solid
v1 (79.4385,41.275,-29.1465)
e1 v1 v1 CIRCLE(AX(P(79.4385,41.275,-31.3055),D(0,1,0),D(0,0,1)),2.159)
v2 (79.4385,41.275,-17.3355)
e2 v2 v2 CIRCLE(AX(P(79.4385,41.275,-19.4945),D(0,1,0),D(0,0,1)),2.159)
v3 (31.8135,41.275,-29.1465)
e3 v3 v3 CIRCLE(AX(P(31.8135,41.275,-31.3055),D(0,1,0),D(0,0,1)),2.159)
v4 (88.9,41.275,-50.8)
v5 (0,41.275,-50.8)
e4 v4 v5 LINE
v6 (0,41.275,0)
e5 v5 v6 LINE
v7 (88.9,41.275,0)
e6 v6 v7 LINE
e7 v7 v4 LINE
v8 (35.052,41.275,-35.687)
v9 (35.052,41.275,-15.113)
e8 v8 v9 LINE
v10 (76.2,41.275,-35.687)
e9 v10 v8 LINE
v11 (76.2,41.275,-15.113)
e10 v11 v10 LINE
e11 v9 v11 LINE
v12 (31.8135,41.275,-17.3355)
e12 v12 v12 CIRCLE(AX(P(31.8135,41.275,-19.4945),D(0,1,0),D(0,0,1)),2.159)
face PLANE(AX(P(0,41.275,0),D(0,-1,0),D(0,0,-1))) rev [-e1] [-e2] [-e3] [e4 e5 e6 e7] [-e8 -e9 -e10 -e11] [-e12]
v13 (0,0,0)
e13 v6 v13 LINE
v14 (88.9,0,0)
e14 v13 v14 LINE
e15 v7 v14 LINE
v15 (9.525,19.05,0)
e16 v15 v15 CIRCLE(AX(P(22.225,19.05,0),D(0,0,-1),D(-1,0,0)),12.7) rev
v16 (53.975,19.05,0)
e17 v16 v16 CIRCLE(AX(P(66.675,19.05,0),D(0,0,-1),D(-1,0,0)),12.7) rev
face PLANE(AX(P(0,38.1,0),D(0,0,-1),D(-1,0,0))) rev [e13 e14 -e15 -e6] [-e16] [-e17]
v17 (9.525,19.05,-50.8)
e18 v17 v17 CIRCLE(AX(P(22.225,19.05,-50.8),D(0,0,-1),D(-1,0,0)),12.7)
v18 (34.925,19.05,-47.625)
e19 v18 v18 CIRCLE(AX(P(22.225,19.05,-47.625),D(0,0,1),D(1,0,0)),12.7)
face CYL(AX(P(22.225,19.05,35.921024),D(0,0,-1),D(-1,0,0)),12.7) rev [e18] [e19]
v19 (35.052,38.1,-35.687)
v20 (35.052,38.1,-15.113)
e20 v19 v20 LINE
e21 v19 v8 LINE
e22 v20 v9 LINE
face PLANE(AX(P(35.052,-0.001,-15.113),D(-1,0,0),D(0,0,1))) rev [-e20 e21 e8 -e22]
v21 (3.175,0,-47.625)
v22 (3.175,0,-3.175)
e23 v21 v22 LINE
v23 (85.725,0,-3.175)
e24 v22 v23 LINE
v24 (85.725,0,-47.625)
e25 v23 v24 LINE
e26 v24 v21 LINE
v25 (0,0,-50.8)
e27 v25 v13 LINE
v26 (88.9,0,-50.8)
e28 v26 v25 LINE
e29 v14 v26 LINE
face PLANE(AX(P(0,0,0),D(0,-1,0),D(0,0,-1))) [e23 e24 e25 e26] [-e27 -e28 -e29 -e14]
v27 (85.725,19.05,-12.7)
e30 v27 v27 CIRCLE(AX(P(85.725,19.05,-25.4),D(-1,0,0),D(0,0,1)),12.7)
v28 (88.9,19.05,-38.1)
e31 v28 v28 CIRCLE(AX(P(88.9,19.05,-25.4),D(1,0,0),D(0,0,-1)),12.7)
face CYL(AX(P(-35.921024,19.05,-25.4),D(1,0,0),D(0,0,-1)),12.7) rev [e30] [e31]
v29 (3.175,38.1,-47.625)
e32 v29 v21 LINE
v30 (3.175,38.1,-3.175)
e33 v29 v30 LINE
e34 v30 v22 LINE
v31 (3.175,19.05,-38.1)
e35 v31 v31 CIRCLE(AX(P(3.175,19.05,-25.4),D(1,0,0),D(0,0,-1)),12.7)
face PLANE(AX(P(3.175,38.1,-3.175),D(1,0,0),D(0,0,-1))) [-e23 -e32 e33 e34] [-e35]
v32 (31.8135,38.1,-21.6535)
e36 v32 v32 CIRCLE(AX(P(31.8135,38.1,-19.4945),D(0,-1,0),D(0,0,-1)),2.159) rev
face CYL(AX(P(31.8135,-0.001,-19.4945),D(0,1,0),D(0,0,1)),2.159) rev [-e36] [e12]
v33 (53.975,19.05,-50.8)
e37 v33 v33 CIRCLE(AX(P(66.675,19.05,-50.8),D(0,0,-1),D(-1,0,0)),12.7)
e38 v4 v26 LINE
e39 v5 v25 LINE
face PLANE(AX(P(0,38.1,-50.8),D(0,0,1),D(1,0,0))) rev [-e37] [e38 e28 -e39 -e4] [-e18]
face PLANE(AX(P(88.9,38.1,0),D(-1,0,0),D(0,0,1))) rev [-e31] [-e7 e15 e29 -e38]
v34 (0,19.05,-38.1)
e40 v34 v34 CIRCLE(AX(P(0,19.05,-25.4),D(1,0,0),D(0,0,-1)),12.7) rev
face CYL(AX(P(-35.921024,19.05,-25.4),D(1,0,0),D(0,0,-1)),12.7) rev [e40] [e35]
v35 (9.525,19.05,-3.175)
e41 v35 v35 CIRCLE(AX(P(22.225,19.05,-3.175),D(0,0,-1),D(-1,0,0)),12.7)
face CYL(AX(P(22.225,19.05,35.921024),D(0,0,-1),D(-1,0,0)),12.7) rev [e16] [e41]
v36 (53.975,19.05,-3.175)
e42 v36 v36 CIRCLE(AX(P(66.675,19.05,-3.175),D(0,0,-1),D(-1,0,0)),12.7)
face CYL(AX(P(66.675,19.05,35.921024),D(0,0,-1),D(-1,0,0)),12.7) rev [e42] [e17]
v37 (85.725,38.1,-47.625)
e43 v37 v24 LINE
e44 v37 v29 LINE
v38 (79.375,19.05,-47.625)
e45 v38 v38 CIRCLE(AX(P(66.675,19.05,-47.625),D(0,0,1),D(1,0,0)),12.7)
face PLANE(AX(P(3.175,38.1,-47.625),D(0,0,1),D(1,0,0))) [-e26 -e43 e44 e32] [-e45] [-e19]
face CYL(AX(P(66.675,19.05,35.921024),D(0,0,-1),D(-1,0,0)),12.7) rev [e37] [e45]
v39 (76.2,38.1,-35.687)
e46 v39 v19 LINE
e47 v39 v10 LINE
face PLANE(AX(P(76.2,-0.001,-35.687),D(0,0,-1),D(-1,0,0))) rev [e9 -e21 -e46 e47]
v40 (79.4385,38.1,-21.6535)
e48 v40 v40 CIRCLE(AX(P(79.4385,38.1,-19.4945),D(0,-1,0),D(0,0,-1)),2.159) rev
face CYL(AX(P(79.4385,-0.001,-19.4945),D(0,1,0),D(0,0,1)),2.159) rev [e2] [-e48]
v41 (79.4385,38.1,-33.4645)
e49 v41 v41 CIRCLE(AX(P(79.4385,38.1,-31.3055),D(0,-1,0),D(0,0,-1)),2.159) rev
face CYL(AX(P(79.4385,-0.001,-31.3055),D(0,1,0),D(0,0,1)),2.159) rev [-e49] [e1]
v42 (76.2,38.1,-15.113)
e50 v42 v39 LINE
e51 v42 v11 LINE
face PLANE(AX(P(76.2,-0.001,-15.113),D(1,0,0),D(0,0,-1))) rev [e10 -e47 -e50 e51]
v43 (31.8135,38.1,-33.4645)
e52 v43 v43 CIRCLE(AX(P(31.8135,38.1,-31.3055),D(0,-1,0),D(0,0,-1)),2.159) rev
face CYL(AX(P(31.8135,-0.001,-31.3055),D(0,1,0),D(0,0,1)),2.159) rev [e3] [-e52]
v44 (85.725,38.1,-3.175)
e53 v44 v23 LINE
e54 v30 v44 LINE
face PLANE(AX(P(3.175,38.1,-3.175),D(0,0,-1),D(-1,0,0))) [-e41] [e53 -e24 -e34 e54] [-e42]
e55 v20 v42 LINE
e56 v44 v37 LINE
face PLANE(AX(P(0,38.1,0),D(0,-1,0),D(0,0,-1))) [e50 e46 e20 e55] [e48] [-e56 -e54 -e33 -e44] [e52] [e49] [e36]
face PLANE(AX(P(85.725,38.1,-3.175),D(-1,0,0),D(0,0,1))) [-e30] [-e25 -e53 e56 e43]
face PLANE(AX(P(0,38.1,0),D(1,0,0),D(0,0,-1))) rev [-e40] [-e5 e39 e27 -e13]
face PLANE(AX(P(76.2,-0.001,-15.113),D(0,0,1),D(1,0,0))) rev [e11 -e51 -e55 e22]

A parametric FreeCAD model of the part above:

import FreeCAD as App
import Part
import Sketcher

V = App.Vector
Q = App.Units.Quantity


def add_polygon(sketch, points):
    """Adds a closed chain of lines whose ends are joined by coincident constraints."""
    first, n = sketch.GeometryCount, len(points)
    for a, b in zip(points, points[1:] + points[:1]):
        sketch.addGeometry(Part.LineSegment(App.Vector(*a, 0), App.Vector(*b, 0)), False)
    for i in range(n):
        sketch.addConstraint(Sketcher.Constraint("Coincident", first + i, 2, first + (i + 1) % n, 1))

doc = App.newDocument("Part")
body = doc.addObject("PartDesign::Body", "Body")

sketch1 = body.newObject("Sketcher::SketchObject", "Sketch")
sketch1.AttachmentSupport = (doc.getObject("XZ_Plane"), [""])
sketch1.MapMode = "FlatFace"
add_polygon(sketch1, [(0, -51), (0, 0), (89, 0), (89, -51)])
add_polygon(sketch1, [(86, -3), (3, -3), (3, -48), (86, -48)])
sketch1.addConstraint(Sketcher.Constraint("Vertical", 0))
sketch1.addConstraint(Sketcher.Constraint("Horizontal", 1))
sketch1.addConstraint(Sketcher.Constraint("Vertical", 2))
sketch1.addConstraint(Sketcher.Constraint("Horizontal", 3))
sketch1.addConstraint(Sketcher.Constraint("Horizontal", 4))
sketch1.addConstraint(Sketcher.Constraint("Vertical", 5))
sketch1.addConstraint(Sketcher.Constraint("Horizontal", 6))
sketch1.addConstraint(Sketcher.Constraint("Vertical", 7))
sketch1.addConstraint(Sketcher.Constraint("Coincident", 0, 2, -1, 1))
sketch1.addConstraint(Sketcher.Constraint("DistanceY", 0, 1, 0, 2, Q("2 in")))
sketch1.addConstraint(Sketcher.Constraint("DistanceX", 1, 1, 1, 2, Q("3.5 in")))
sketch1.addConstraint(Sketcher.Constraint("DistanceX", 4, 2, 4, 1, Q("3.25 in")))
sketch1.addConstraint(Sketcher.Constraint("DistanceY", 5, 2, 5, 1, Q("1.75 in")))
sketch1.addConstraint(Sketcher.Constraint("DistanceX", -1, 1, 4, 2, Q("0.125 in")))
sketch1.addConstraint(Sketcher.Constraint("DistanceY", 4, 2, -1, 1, Q("0.125 in")))
pad1 = body.newObject("PartDesign::Pad", "Pad")
pad1.Profile = sketch1
pad1.Length = Q("1.5 in")
pad1.Reversed = True

sketch2 = body.newObject("Sketcher::SketchObject", "Sketch001")
sketch2.AttachmentSupport = (doc.getObject("YZ_Plane"), [""])
sketch2.MapMode = "FlatFace"
sketch2.AttachmentOffset = App.Placement(V(0, 0, 3.5 * 25.4), App.Rotation())
sketch2.addGeometry(Part.Circle(V(19, -25, 0), V(0, 0, 1), 13), False)
sketch2.addConstraint(Sketcher.Constraint("Diameter", 0, Q("1 in")))
sketch2.addConstraint(Sketcher.Constraint("DistanceY", 0, 3, -1, 1, Q("1 in")))
sketch2.addConstraint(Sketcher.Constraint("DistanceX", -1, 1, 0, 3, Q("0.75 in")))
pocket1 = body.newObject("PartDesign::Pocket", "Pocket")
pocket1.Profile = sketch2
pocket1.Length = Q("3.5 in")

sketch3 = body.newObject("Sketcher::SketchObject", "Sketch002")
sketch3.AttachmentSupport = (doc.getObject("XZ_Plane"), [""])
sketch3.MapMode = "FlatFace"
sketch3.AttachmentOffset = App.Placement(V(0, 0, -1.5 * 25.4), App.Rotation())
add_polygon(sketch3, [(0, -51), (0, 0), (89, 0), (89, -51)])
sketch3.addConstraint(Sketcher.Constraint("Vertical", 0))
sketch3.addConstraint(Sketcher.Constraint("Horizontal", 1))
sketch3.addConstraint(Sketcher.Constraint("Vertical", 2))
sketch3.addConstraint(Sketcher.Constraint("Horizontal", 3))
sketch3.addConstraint(Sketcher.Constraint("Coincident", 0, 2, -1, 1))
sketch3.addConstraint(Sketcher.Constraint("DistanceY", 0, 1, 0, 2, Q("2 in")))
sketch3.addConstraint(Sketcher.Constraint("DistanceX", 1, 1, 1, 2, Q("3.5 in")))
pad2 = body.newObject("PartDesign::Pad", "Pad001")
pad2.Profile = sketch3
pad2.Length = Q("0.125 in")
pad2.Reversed = True

sketch4 = body.newObject("Sketcher::SketchObject", "Sketch003")
sketch4.AttachmentSupport = (doc.getObject("XY_Plane"), [""])
sketch4.MapMode = "FlatFace"
sketch4.AttachmentOffset = App.Placement(V(0, 0, -2 * 25.4), App.Rotation())
sketch4.addGeometry(Part.Circle(V(67, 19, 0), V(0, 0, 1), 13), False)
sketch4.addGeometry(Part.Circle(V(22, 19, 0), V(0, 0, 1), 13), False)
sketch4.addConstraint(Sketcher.Constraint("Equal", 0, 1))
sketch4.addConstraint(Sketcher.Constraint("Horizontal", 0, 3, 1, 3))
sketch4.addConstraint(Sketcher.Constraint("Diameter", 0, Q("1 in")))
sketch4.addConstraint(Sketcher.Constraint("DistanceY", -1, 1, 0, 3, Q("0.75 in")))
sketch4.addConstraint(Sketcher.Constraint("DistanceX", 1, 3, 0, 3, Q("1.75 in")))
sketch4.addConstraint(Sketcher.Constraint("DistanceX", -1, 1, 0, 3, Q("2.625 in")))
pocket2 = body.newObject("PartDesign::Pocket", "Pocket001")
pocket2.Profile = sketch4
pocket2.Length = Q("2 in")
pocket2.Reversed = True

sketch5 = body.newObject("Sketcher::SketchObject", "Sketch004")
sketch5.AttachmentSupport = (doc.getObject("XZ_Plane"), [""])
sketch5.MapMode = "FlatFace"
sketch5.AttachmentOffset = App.Placement(V(0, 0, -1.625 * 25.4), App.Rotation())
sketch5.addGeometry(Part.Circle(V(31.8, -31.3, 0), V(0, 0, 1), 2.2), False)
sketch5.addConstraint(Sketcher.Constraint("Diameter", 0, Q("0.17 in")))
sketch5.addConstraint(Sketcher.Constraint("DistanceX", -1, 1, 0, 3, Q("1.2525 in")))
sketch5.addConstraint(Sketcher.Constraint("DistanceY", 0, 3, -1, 1, Q("1.2325 in")))
pocket3 = body.newObject("PartDesign::Pocket", "Pocket002")
pocket3.Profile = sketch5
pocket3.Type = "UpToFirst"
pocket3.Reversed = True

sketch6 = body.newObject("Sketcher::SketchObject", "Sketch005")
sketch6.AttachmentSupport = (doc.getObject("XZ_Plane"), [""])
sketch6.MapMode = "FlatFace"
sketch6.AttachmentOffset = App.Placement(V(0, 0, -1.625 * 25.4), App.Rotation())
sketch6.addGeometry(Part.Circle(V(31.8, -19.5, 0), V(0, 0, 1), 2.2), False)
sketch6.addConstraint(Sketcher.Constraint("Diameter", 0, Q("0.17 in")))
sketch6.addConstraint(Sketcher.Constraint("DistanceX", -1, 1, 0, 3, Q("1.2525 in")))
sketch6.addConstraint(Sketcher.Constraint("DistanceY", 0, 3, -1, 1, Q("0.7675 in")))
pocket4 = body.newObject("PartDesign::Pocket", "Pocket003")
pocket4.Profile = sketch6
pocket4.Type = "UpToFirst"
pocket4.Reversed = True

sketch7 = body.newObject("Sketcher::SketchObject", "Sketch006")
sketch7.AttachmentSupport = (doc.getObject("XZ_Plane"), [""])
sketch7.MapMode = "FlatFace"
sketch7.AttachmentOffset = App.Placement(V(0, 0, -1.625 * 25.4), App.Rotation())
sketch7.addGeometry(Part.Circle(V(79.4, -19.5, 0), V(0, 0, 1), 2.2), False)
sketch7.addConstraint(Sketcher.Constraint("Diameter", 0, Q("0.17 in")))
sketch7.addConstraint(Sketcher.Constraint("DistanceX", -1, 1, 0, 3, Q("3.1275 in")))
sketch7.addConstraint(Sketcher.Constraint("DistanceY", 0, 3, -1, 1, Q("0.7675 in")))
pocket5 = body.newObject("PartDesign::Pocket", "Pocket004")
pocket5.Profile = sketch7
pocket5.Type = "UpToFirst"
pocket5.Reversed = True

sketch8 = body.newObject("Sketcher::SketchObject", "Sketch007")
sketch8.AttachmentSupport = (doc.getObject("XZ_Plane"), [""])
sketch8.MapMode = "FlatFace"
sketch8.AttachmentOffset = App.Placement(V(0, 0, -1.625 * 25.4), App.Rotation())
sketch8.addGeometry(Part.Circle(V(79.4, -31.3, 0), V(0, 0, 1), 2.2), False)
sketch8.addConstraint(Sketcher.Constraint("Diameter", 0, Q("0.17 in")))
sketch8.addConstraint(Sketcher.Constraint("DistanceX", -1, 1, 0, 3, Q("3.1275 in")))
sketch8.addConstraint(Sketcher.Constraint("DistanceY", 0, 3, -1, 1, Q("1.2325 in")))
pocket6 = body.newObject("PartDesign::Pocket", "Pocket005")
pocket6.Profile = sketch8
pocket6.Type = "UpToFirst"
pocket6.Reversed = True

sketch9 = body.newObject("Sketcher::SketchObject", "Sketch008")
sketch9.AttachmentSupport = (doc.getObject("XZ_Plane"), [""])
sketch9.MapMode = "FlatFace"
sketch9.AttachmentOffset = App.Placement(V(0, 0, -1.625 * 25.4), App.Rotation())
add_polygon(sketch9, [(35, -36), (35, -15), (76, -15), (76, -36)])
sketch9.addConstraint(Sketcher.Constraint("Vertical", 0))
sketch9.addConstraint(Sketcher.Constraint("Horizontal", 1))
sketch9.addConstraint(Sketcher.Constraint("Vertical", 2))
sketch9.addConstraint(Sketcher.Constraint("Horizontal", 3))
sketch9.addConstraint(Sketcher.Constraint("DistanceX", -1, 1, 1, 2, Q("3 in")))
sketch9.addConstraint(Sketcher.Constraint("DistanceX", 1, 1, 1, 2, Q("1.62 in")))
sketch9.addConstraint(Sketcher.Constraint("DistanceY", 0, 1, 0, 2, Q("0.81 in")))
sketch9.addConstraint(Sketcher.Constraint("DistanceY", 0, 2, -1, 1, Q("0.595 in")))
pocket7 = body.newObject("PartDesign::Pocket", "Pocket006")
pocket7.Profile = sketch9
pocket7.Type = "UpToFirst"
pocket7.Reversed = True

doc.recompute()
